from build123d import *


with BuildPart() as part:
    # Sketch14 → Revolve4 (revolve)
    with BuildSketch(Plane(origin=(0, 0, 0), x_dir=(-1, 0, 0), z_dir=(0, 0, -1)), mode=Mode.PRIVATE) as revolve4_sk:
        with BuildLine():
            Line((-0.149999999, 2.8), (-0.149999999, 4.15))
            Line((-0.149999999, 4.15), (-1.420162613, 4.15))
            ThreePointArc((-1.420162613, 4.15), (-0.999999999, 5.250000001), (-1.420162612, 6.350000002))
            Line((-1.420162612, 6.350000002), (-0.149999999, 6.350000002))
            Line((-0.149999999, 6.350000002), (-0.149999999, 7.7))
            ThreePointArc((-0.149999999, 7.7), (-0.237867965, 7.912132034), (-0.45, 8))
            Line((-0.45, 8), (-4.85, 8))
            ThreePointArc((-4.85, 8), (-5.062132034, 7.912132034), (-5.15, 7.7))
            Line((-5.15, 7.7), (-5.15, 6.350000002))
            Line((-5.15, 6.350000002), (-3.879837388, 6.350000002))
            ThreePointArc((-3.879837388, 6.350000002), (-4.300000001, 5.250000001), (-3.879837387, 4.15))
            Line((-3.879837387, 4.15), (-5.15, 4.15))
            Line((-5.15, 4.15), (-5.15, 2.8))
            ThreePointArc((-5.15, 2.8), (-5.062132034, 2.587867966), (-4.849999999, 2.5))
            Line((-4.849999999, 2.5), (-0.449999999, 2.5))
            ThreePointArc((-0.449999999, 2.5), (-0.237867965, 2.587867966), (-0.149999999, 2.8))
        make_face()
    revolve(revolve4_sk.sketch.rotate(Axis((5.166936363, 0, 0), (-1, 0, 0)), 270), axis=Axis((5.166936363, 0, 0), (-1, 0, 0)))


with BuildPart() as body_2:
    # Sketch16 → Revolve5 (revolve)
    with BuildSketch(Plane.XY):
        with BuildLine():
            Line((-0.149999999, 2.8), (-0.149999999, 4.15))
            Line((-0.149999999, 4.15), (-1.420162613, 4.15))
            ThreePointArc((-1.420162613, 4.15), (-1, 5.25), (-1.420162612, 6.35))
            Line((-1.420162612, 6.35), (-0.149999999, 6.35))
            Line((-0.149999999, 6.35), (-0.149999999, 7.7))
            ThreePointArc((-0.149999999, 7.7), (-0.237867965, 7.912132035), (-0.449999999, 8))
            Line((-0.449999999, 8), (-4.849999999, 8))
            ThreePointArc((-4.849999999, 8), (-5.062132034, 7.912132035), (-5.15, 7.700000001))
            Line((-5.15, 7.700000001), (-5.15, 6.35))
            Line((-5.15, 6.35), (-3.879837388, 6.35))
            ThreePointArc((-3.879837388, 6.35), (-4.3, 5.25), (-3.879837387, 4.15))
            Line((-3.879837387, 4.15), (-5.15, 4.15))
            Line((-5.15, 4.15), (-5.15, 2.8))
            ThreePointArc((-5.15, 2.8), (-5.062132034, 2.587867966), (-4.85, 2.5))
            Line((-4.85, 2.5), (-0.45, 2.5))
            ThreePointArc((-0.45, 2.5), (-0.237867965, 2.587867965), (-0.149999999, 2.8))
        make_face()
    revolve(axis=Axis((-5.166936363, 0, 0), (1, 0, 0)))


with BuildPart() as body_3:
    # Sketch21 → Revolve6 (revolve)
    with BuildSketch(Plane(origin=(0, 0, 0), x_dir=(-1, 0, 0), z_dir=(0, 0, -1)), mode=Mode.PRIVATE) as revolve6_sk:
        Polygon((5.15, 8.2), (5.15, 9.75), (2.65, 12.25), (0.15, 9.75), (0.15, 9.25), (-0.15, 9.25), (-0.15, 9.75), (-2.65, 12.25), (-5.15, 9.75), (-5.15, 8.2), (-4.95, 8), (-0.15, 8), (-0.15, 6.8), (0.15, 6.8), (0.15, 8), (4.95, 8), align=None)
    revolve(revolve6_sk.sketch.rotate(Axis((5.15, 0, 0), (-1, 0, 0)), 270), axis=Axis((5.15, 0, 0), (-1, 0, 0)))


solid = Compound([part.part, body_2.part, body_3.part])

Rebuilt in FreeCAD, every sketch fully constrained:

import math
import FreeCAD as App
import Part
import Sketcher

V = App.Vector
Q = App.Units.Quantity


def add_polygon(sketch, points):
    """Adds a closed chain of lines whose ends are joined by coincident constraints."""
    first, n = sketch.GeometryCount, len(points)
    for a, b in zip(points, points[1:] + points[:1]):
        sketch.addGeometry(Part.LineSegment(App.Vector(*a, 0), App.Vector(*b, 0)), False)
    for i in range(n):
        sketch.addConstraint(Sketcher.Constraint("Coincident", first + i, 2, first + (i + 1) % n, 1))

doc = App.newDocument("Part")
params = doc.addObject("Spreadsheet::Sheet", "Params")
for row, (alias, value) in enumerate([
    ("sketch1_radius", "0.3 mm"),
    ("sketch1_radius2", "1.65 mm"),
    ("sketch1_width", "4.4 mm"),
    ("sketch1_height", "1.35 mm"),
    ("revolution_angle", "360 deg"),
    ("sketch2_radius", "0.3 mm"),
    ("sketch2_radius2", "1.65 mm"),
    ("sketch2_width", "4.4 mm"),
    ("sketch2_height", "1.35 mm"),
    ("revolution2_angle", "360 deg"),
    ("sketch3_width", "0.3 mm"),
    ("sketch3_width2", "4.8 mm"),
    ("sketch3_height", "0.5 mm"),
    ("sketch3_height2", "1.2 mm"),
    ("sketch3_height3", "1.55 mm"),
    ("revolution3_angle", "360 deg"),
], start=1):
    params.set(f"A{row}", alias)
    params.set(f"B{row}", "=" + value)
    params.setAlias(f"B{row}", alias)

body = doc.addObject("PartDesign::Body", "Body")

# Sketch on XY plane
sketch1 = body.newObject("Sketcher::SketchObject", "Sketch")
sketch1.AttachmentSupport = (doc.getObject("XY_Plane"), [""])
sketch1.MapMode = "FlatFace"
sketch1.addGeometry(Part.LineSegment(V(0.15, 2.8, 0), V(0.15, 4.15, 0)), False)
sketch1.addGeometry(Part.LineSegment(V(0.15, 4.15, 0), V(1.420163, 4.15, 0)), False)
sketch1.addGeometry(Part.ArcOfCircle(Part.Circle(V(2.65, 5.25, 0), V(0, 0, 1), 1.65), math.radians(138.189685), math.radians(221.810315)), False)
sketch1.addGeometry(Part.LineSegment(V(1.420163, 6.35, 0), V(0.15, 6.35, 0)), False)
sketch1.addGeometry(Part.LineSegment(V(0.15, 6.35, 0), V(0.15, 7.7, 0)), False)
sketch1.addGeometry(Part.ArcOfCircle(Part.Circle(V(0.45, 7.7, 0), V(0, 0, 1), 0.3), math.radians(90), math.radians(180)), False)
sketch1.addGeometry(Part.LineSegment(V(0.45, 8, 0), V(4.85, 8, 0)), False)
sketch1.addGeometry(Part.ArcOfCircle(Part.Circle(V(4.85, 7.7, 0), V(0, 0, 1), 0.3), math.radians(0), math.radians(90)), False)
sketch1.addGeometry(Part.LineSegment(V(5.15, 7.7, 0), V(5.15, 6.35, 0)), False)
sketch1.addGeometry(Part.LineSegment(V(5.15, 6.35, 0), V(3.879837, 6.35, 0)), False)
sketch1.addGeometry(Part.ArcOfCircle(Part.Circle(V(2.65, 5.25, 0), V(0, 0, 1), 1.65), math.radians(-41.810315), math.radians(41.810315)), False)
sketch1.addGeometry(Part.LineSegment(V(3.879837, 4.15, 0), V(5.15, 4.15, 0)), False)
sketch1.addGeometry(Part.LineSegment(V(5.15, 4.15, 0), V(5.15, 2.8, 0)), False)
sketch1.addGeometry(Part.ArcOfCircle(Part.Circle(V(4.85, 2.8, 0), V(0, 0, 1), 0.3), math.radians(-90), math.radians(0)), False)
sketch1.addGeometry(Part.LineSegment(V(4.85, 2.5, 0), V(0.45, 2.5, 0)), False)
sketch1.addGeometry(Part.ArcOfCircle(Part.Circle(V(0.45, 2.8, 0), V(0, 0, 1), 0.3), math.radians(-180), math.radians(-90)), False)
sketch1.addConstraint(Sketcher.Constraint("Coincident", 0, 2, 1, 1))
sketch1.addConstraint(Sketcher.Constraint("Coincident", 1, 2, 2, 2))
sketch1.addConstraint(Sketcher.Constraint("Coincident", 2, 1, 3, 1))
sketch1.addConstraint(Sketcher.Constraint("Coincident", 3, 2, 4, 1))
sketch1.addConstraint(Sketcher.Constraint("Tangent", 4, 2, 5, 2))
sketch1.addConstraint(Sketcher.Constraint("Tangent", 5, 1, 6, 1))
sketch1.addConstraint(Sketcher.Constraint("Tangent", 6, 2, 7, 2))
sketch1.addConstraint(Sketcher.Constraint("Tangent", 7, 1, 8, 1))
sketch1.addConstraint(Sketcher.Constraint("Coincident", 8, 2, 9, 1))
sketch1.addConstraint(Sketcher.Constraint("Coincident", 9, 2, 10, 2))
sketch1.addConstraint(Sketcher.Constraint("Coincident", 10, 1, 11, 1))
sketch1.addConstraint(Sketcher.Constraint("Coincident", 11, 2, 12, 1))
sketch1.addConstraint(Sketcher.Constraint("Tangent", 12, 2, 13, 2))
sketch1.addConstraint(Sketcher.Constraint("Tangent", 13, 1, 14, 1))
sketch1.addConstraint(Sketcher.Constraint("Tangent", 14, 2, 15, 2))
sketch1.addConstraint(Sketcher.Constraint("Tangent", 15, 1, 0, 1))
sketch1.addConstraint(Sketcher.Constraint("Vertical", 0))
sketch1.addConstraint(Sketcher.Constraint("Horizontal", 1))
sketch1.addConstraint(Sketcher.Constraint("Horizontal", 3))
sketch1.addConstraint(Sketcher.Constraint("Vertical", 4))
sketch1.addConstraint(Sketcher.Constraint("Horizontal", 6))
sketch1.addConstraint(Sketcher.Constraint("Vertical", 8))
sketch1.addConstraint(Sketcher.Constraint("Horizontal", 9))
sketch1.addConstraint(Sketcher.Constraint("Horizontal", 11))
sketch1.addConstraint(Sketcher.Constraint("Vertical", 12))
sketch1.addConstraint(Sketcher.Constraint("Horizontal", 14))
sketch1.addConstraint(Sketcher.Constraint("Coincident", 10, 3, 2, 3))
sketch1.addConstraint(Sketcher.Constraint("Equal", 5, 7))
sketch1.addConstraint(Sketcher.Constraint("Equal", 2, 10))
sketch1.addConstraint(Sketcher.Constraint("Equal", 7, 13))
sketch1.addConstraint(Sketcher.Constraint("Equal", 13, 15))
sketch1.addConstraint(Sketcher.Constraint("Horizontal", 3, 2, 8, 2))
sketch1.addConstraint(Sketcher.Constraint("Horizontal", 1, 2, 10, 1))
sketch1.addConstraint(Sketcher.Constraint("Vertical", 7, 3, 13, 3))
sketch1.addConstraint(Sketcher.Constraint("Vertical", 5, 3, 15, 3))
sketch1.addConstraint(Sketcher.Constraint("Vertical", 1, 2, 2, 1))
sketch1.addConstraint(Sketcher.Constraint("Equal", 3, 9))
sketch1.addConstraint(Sketcher.Constraint("Equal", 0, 4))
sketch1.addConstraint(Sketcher.Constraint("Radius", 5, Q("0.3 mm")))
sketch1.addConstraint(Sketcher.Constraint("Radius", 2, Q("1.65 mm")))
sketch1.addConstraint(Sketcher.Constraint("DistanceX", 6, 1, 6, 2, Q("4.4 mm")))
sketch1.addConstraint(Sketcher.Constraint("DistanceY", -1, 1, 5, 1, Q("8 mm")))
sketch1.addConstraint(Sketcher.Constraint("DistanceY", 0, 1, 0, 2, Q("1.35 mm")))
sketch1.addConstraint(Sketcher.Constraint("DistanceY", -1, 1, 13, 3, Q("2.8 mm")))
sketch1.addConstraint(Sketcher.Constraint("DistanceX", -1, 1, 2, 3, Q("2.65 mm")))
sketch1.setExpression("Constraints[38]", "Params.sketch1_radius")
sketch1.setExpression("Constraints[39]", "Params.sketch1_radius2")
sketch1.setExpression("Constraints[40]", "Params.sketch1_width")
sketch1.setExpression("Constraints[42]", "Params.sketch1_height")
revolution = body.newObject("PartDesign::Revolution", "Revolution")
revolution.Profile = sketch1
revolution.ReferenceAxis = (sketch1, ["H_Axis"])
revolution.setExpression("Angle", "Params.revolution_angle")
body2 = doc.addObject("PartDesign::Body", "Body001")

# Sketch on XY plane
sketch2 = body2.newObject("Sketcher::SketchObject", "Sketch001")
sketch2.AttachmentSupport = (doc.getObject("XY_Plane001"), [""])
sketch2.MapMode = "FlatFace"
sketch2.addGeometry(Part.LineSegment(V(-0.15, 2.8, 0), V(-0.15, 4.15, 0)), False)
sketch2.addGeometry(Part.LineSegment(V(-0.15, 4.15, 0), V(-1.420163, 4.15, 0)), False)
sketch2.addGeometry(Part.ArcOfCircle(Part.Circle(V(-2.65, 5.25, 0), V(0, 0, 1), 1.65), math.radians(-41.810315), math.radians(41.810315)), False)
sketch2.addGeometry(Part.LineSegment(V(-1.420163, 6.35, 0), V(-0.15, 6.35, 0)), False)
sketch2.addGeometry(Part.LineSegment(V(-0.15, 6.35, 0), V(-0.15, 7.7, 0)), False)
sketch2.addGeometry(Part.ArcOfCircle(Part.Circle(V(-0.45, 7.7, 0), V(0, 0, 1), 0.3), math.radians(0), math.radians(90)), False)
sketch2.addGeometry(Part.LineSegment(V(-0.45, 8, 0), V(-4.85, 8, 0)), False)
sketch2.addGeometry(Part.ArcOfCircle(Part.Circle(V(-4.85, 7.7, 0), V(0, 0, 1), 0.3), math.radians(90), math.radians(180)), False)
sketch2.addGeometry(Part.LineSegment(V(-5.15, 7.7, 0), V(-5.15, 6.35, 0)), False)
sketch2.addGeometry(Part.LineSegment(V(-5.15, 6.35, 0), V(-3.879837, 6.35, 0)), False)
sketch2.addGeometry(Part.ArcOfCircle(Part.Circle(V(-2.65, 5.25, 0), V(0, 0, 1), 1.65), math.radians(138.189685), math.radians(221.810315)), False)
sketch2.addGeometry(Part.LineSegment(V(-3.879837, 4.15, 0), V(-5.15, 4.15, 0)), False)
sketch2.addGeometry(Part.LineSegment(V(-5.15, 4.15, 0), V(-5.15, 2.8, 0)), False)
sketch2.addGeometry(Part.ArcOfCircle(Part.Circle(V(-4.85, 2.8, 0), V(0, 0, 1), 0.3), math.radians(-180), math.radians(-90)), False)
sketch2.addGeometry(Part.LineSegment(V(-4.85, 2.5, 0), V(-0.45, 2.5, 0)), False)
sketch2.addGeometry(Part.ArcOfCircle(Part.Circle(V(-0.45, 2.8, 0), V(0, 0, 1), 0.3), math.radians(-90), math.radians(0)), False)
sketch2.addConstraint(Sketcher.Constraint("Coincident", 0, 2, 1, 1))
sketch2.addConstraint(Sketcher.Constraint("Coincident", 1, 2, 2, 1))
sketch2.addConstraint(Sketcher.Constraint("Coincident", 2, 2, 3, 1))
sketch2.addConstraint(Sketcher.Constraint("Coincident", 3, 2, 4, 1))
sketch2.addConstraint(Sketcher.Constraint("Tangent", 4, 2, 5, 1))
sketch2.addConstraint(Sketcher.Constraint("Tangent", 5, 2, 6, 1))
sketch2.addConstraint(Sketcher.Constraint("Tangent", 6, 2, 7, 1))
sketch2.addConstraint(Sketcher.Constraint("Tangent", 7, 2, 8, 1))
sketch2.addConstraint(Sketcher.Constraint("Coincident", 8, 2, 9, 1))
sketch2.addConstraint(Sketcher.Constraint("Coincident", 9, 2, 10, 1))
sketch2.addConstraint(Sketcher.Constraint("Coincident", 10, 2, 11, 1))
sketch2.addConstraint(Sketcher.Constraint("Coincident", 11, 2, 12, 1))
sketch2.addConstraint(Sketcher.Constraint("Tangent", 12, 2, 13, 1))
sketch2.addConstraint(Sketcher.Constraint("Tangent", 13, 2, 14, 1))
sketch2.addConstraint(Sketcher.Constraint("Tangent", 14, 2, 15, 1))
sketch2.addConstraint(Sketcher.Constraint("Tangent", 15, 2, 0, 1))
sketch2.addConstraint(Sketcher.Constraint("Vertical", 0))
sketch2.addConstraint(Sketcher.Constraint("Horizontal", 1))
sketch2.addConstraint(Sketcher.Constraint("Horizontal", 3))
sketch2.addConstraint(Sketcher.Constraint("Vertical", 4))
sketch2.addConstraint(Sketcher.Constraint("Horizontal", 6))
sketch2.addConstraint(Sketcher.Constraint("Vertical", 8))
sketch2.addConstraint(Sketcher.Constraint("Horizontal", 9))
sketch2.addConstraint(Sketcher.Constraint("Horizontal", 11))
sketch2.addConstraint(Sketcher.Constraint("Vertical", 12))
sketch2.addConstraint(Sketcher.Constraint("Horizontal", 14))
sketch2.addConstraint(Sketcher.Constraint("Coincident", 10, 3, 2, 3))
sketch2.addConstraint(Sketcher.Constraint("Equal", 5, 7))
sketch2.addConstraint(Sketcher.Constraint("Equal", 2, 10))
sketch2.addConstraint(Sketcher.Constraint("Equal", 7, 13))
sketch2.addConstraint(Sketcher.Constraint("Equal", 13, 15))
sketch2.addConstraint(Sketcher.Constraint("Horizontal", 3, 2, 8, 2))
sketch2.addConstraint(Sketcher.Constraint("Horizontal", 1, 2, 10, 2))
sketch2.addConstraint(Sketcher.Constraint("Vertical", 7, 3, 13, 3))
sketch2.addConstraint(Sketcher.Constraint("Vertical", 5, 3, 15, 3))
sketch2.addConstraint(Sketcher.Constraint("Vertical", 1, 2, 2, 2))
sketch2.addConstraint(Sketcher.Constraint("Equal", 3, 9))
sketch2.addConstraint(Sketcher.Constraint("Equal", 0, 4))
sketch2.addConstraint(Sketcher.Constraint("Radius", 5, Q("0.3 mm")))
sketch2.addConstraint(Sketcher.Constraint("Radius", 2, Q("1.65 mm")))
sketch2.addConstraint(Sketcher.Constraint("DistanceX", 6, 2, 6, 1, Q("4.4 mm")))
sketch2.addConstraint(Sketcher.Constraint("DistanceY", -1, 1, 5, 2, Q("8 mm")))
sketch2.addConstraint(Sketcher.Constraint("DistanceY", 0, 1, 0, 2, Q("1.35 mm")))
sketch2.addConstraint(Sketcher.Constraint("DistanceY", -1, 1, 13, 3, Q("2.8 mm")))
sketch2.addConstraint(Sketcher.Constraint("DistanceX", 2, 3, -1, 1, Q("2.65 mm")))
sketch2.setExpression("Constraints[38]", "Params.sketch2_radius")
sketch2.setExpression("Constraints[39]", "Params.sketch2_radius2")
sketch2.setExpression("Constraints[40]", "Params.sketch2_width")
sketch2.setExpression("Constraints[42]", "Params.sketch2_height")
revolution2 = body2.newObject("PartDesign::Revolution", "Revolution001")
revolution2.Profile = sketch2
revolution2.ReferenceAxis = (sketch2, ["H_Axis"])
revolution2.setExpression("Angle", "Params.revolution2_angle")
body3 = doc.addObject("PartDesign::Body", "Body002")

# Sketch on XY plane
sketch3 = body3.newObject("Sketcher::SketchObject", "Sketch002")
sketch3.AttachmentSupport = (doc.getObject("XY_Plane002"), [""])
sketch3.MapMode = "FlatFace"
add_polygon(sketch3, [(-5.15, 8.2), (-5.15, 9.75), (-2.65, 12.25), (-0.15, 9.75), (-0.15, 9.25), (0.15, 9.25), (0.15, 9.75), (2.65, 12.25), (5.15, 9.75), (5.15, 8.2), (4.95, 8), (0.15, 8), (0.15, 6.8), (-0.15, 6.8), (-0.15, 8), (-4.95, 8)])  # lines 0-15
sketch3.addConstraint(Sketcher.Constraint("Vertical", 0))
sketch3.addConstraint(Sketcher.Constraint("Vertical", 3))
sketch3.addConstraint(Sketcher.Constraint("Horizontal", 4))
sketch3.addConstraint(Sketcher.Constraint("Vertical", 5))
sketch3.addConstraint(Sketcher.Constraint("Vertical", 8))
sketch3.addConstraint(Sketcher.Constraint("Horizontal", 10))
sketch3.addConstraint(Sketcher.Constraint("Vertical", 11))
sketch3.addConstraint(Sketcher.Constraint("Horizontal", 12))
sketch3.addConstraint(Sketcher.Constraint("Vertical", 13))
sketch3.addConstraint(Sketcher.Constraint("Horizontal", 14))
sketch3.addConstraint(Sketcher.Constraint("Symmetric", 2, 2, 5, 2, -2))
sketch3.addConstraint(Sketcher.Constraint("Symmetric", 1, 2, 6, 2, -2))
sketch3.addConstraint(Sketcher.Constraint("Symmetric", 0, 2, 7, 2, -2))
sketch3.addConstraint(Sketcher.Constraint("Symmetric", 10, 2, 13, 2, -2))
sketch3.addConstraint(Sketcher.Constraint("Perpendicular", 1, 2))
sketch3.addConstraint(Sketcher.Constraint("Perpendicular", 2, 6))
sketch3.addConstraint(Sketcher.Constraint("Perpendicular", 7, 9))
sketch3.addConstraint(Sketcher.Constraint("Perpendicular", 9, 15))
sketch3.addConstraint(Sketcher.Constraint("Horizontal", 0, 2, 2, 2))
sketch3.addConstraint(Sketcher.Constraint("Horizontal", 8, 2, 15, 2))
sketch3.addConstraint(Sketcher.Constraint("Vertical", 5, 2, 10, 2))
sketch3.addConstraint(Sketcher.Constraint("DistanceX", 4, 1, 4, 2, Q("0.3 mm")))
sketch3.addConstraint(Sketcher.Constraint("DistanceX", 10, 2, 10, 1, Q("4.8 mm")))
sketch3.addConstraint(Sketcher.Constraint("DistanceY", 3, 2, 3, 1, Q("0.5 mm")))
sketch3.addConstraint(Sketcher.Constraint("DistanceY", 11, 2, 11, 1, Q("1.2 mm")))
sketch3.addConstraint(Sketcher.Constraint("DistanceY", -1, 1, 9, 2, Q("8 mm")))
sketch3.addConstraint(Sketcher.Constraint("DistanceX", 0, 2, 2, 2, Q("5 mm")))
sketch3.addConstraint(Sketcher.Constraint("DistanceY", 0, 1, 0, 2, Q("1.55 mm")))
sketch3.setExpression("Constraints[37]", "Params.sketch3_width")
sketch3.setExpression("Constraints[38]", "Params.sketch3_width2")
sketch3.setExpression("Constraints[39]", "Params.sketch3_height")
sketch3.setExpression("Constraints[40]", "Params.sketch3_height2")
sketch3.setExpression("Constraints[43]", "Params.sketch3_height3")
revolution3 = body3.newObject("PartDesign::Revolution", "Revolution002")
revolution3.Profile = sketch3
revolution3.ReferenceAxis = (sketch3, ["H_Axis"])
revolution3.setExpression("Angle", "Params.revolution3_angle")

doc.recompute()
